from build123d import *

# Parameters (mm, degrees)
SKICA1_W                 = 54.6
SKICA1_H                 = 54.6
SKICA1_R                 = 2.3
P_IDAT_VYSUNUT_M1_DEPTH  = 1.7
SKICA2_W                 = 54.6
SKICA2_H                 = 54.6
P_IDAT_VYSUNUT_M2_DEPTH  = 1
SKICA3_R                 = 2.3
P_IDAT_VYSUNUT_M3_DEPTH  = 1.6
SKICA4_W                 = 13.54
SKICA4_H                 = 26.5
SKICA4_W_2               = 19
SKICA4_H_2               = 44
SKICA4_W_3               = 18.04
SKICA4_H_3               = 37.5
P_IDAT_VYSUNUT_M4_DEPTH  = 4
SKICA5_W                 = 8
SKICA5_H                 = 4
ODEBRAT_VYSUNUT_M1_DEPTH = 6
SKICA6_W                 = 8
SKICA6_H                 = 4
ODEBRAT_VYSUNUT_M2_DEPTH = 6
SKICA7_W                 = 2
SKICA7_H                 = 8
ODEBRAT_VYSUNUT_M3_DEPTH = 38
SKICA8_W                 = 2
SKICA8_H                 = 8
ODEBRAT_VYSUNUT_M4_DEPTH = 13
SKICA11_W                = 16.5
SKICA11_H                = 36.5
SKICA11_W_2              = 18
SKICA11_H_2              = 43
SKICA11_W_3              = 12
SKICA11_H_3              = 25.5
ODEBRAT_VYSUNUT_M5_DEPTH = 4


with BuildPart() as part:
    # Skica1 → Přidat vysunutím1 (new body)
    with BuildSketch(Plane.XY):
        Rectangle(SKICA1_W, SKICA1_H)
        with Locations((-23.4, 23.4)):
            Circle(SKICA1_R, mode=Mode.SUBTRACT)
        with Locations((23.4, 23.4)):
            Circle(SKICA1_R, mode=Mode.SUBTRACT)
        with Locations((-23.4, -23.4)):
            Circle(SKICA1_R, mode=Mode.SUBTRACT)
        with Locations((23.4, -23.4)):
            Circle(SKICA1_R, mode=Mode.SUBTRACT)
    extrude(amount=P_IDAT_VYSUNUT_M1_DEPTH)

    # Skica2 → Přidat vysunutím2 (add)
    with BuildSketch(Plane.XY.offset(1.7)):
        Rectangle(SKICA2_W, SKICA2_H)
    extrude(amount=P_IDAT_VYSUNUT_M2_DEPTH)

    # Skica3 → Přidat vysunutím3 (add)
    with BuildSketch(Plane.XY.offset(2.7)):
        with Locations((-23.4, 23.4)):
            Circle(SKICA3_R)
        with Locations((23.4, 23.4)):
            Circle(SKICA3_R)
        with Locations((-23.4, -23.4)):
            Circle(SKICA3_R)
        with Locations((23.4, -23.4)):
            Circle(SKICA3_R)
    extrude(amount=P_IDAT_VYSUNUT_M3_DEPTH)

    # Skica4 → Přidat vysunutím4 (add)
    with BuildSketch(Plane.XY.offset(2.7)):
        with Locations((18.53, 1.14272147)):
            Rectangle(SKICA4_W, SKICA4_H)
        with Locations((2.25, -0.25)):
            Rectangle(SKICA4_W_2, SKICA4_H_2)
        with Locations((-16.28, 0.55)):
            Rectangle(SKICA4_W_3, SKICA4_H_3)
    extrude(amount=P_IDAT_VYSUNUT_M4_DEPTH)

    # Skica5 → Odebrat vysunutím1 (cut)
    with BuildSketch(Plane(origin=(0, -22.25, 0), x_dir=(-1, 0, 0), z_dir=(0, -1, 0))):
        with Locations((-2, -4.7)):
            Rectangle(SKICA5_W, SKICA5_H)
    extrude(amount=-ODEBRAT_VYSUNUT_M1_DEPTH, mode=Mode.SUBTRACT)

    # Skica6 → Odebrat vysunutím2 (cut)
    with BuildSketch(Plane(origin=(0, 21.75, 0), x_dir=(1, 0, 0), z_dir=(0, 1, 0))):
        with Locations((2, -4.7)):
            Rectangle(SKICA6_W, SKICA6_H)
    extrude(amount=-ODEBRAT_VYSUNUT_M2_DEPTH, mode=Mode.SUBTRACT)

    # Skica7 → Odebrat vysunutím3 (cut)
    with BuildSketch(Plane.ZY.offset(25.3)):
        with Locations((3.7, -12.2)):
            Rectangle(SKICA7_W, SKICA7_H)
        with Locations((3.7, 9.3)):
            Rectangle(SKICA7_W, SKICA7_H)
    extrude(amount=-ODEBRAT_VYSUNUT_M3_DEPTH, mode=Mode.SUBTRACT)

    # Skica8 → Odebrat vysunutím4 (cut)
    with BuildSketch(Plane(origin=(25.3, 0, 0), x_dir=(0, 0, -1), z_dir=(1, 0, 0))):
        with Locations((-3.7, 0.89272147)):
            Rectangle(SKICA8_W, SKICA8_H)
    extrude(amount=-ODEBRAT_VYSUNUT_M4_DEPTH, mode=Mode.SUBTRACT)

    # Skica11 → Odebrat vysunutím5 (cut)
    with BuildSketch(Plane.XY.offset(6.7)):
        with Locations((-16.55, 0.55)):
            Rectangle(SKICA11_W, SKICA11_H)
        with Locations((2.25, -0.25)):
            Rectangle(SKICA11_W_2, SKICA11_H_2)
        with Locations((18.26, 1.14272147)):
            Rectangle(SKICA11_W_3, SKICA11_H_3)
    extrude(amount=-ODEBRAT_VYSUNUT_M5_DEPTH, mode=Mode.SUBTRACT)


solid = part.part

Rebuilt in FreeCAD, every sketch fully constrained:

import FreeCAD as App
import Part
import Sketcher
Q = App.Units.Quantity


def add_polygon(sketch, points):
    """Adds a closed chain of lines whose ends are joined by coincident constraints."""
    first, n = sketch.GeometryCount, len(points)
    for a, b in zip(points, points[1:] + points[:1]):
        sketch.addGeometry(Part.LineSegment(App.Vector(*a, 0), App.Vector(*b, 0)), False)
    for i in range(n):
        sketch.addConstraint(Sketcher.Constraint("Coincident", first + i, 2, first + (i + 1) % n, 1))

doc = App.newDocument("Part")
body = doc.addObject("PartDesign::Body", "Body")

sketch1 = body.newObject("Sketcher::SketchObject", "Sketch")
sketch1.AttachmentSupport = (doc.getObject("XY_Plane"), [""])
sketch1.MapMode = "FlatFace"
add_polygon(sketch1, [(-27.3, 27.3), (-27.3, -27.3), (27.3, -27.3), (27.3, 27.3)])
sketch1.addGeometry(Part.Circle(App.Vector(-23.4, -23.4, 0), App.Vector(0, 0, 1), 2.3), False)
sketch1.addGeometry(Part.Circle(App.Vector(23.4, -23.4, 0), App.Vector(0, 0, 1), 2.3), False)
sketch1.addGeometry(Part.Circle(App.Vector(-23.4, 23.4, 0), App.Vector(0, 0, 1), 2.3), False)
sketch1.addGeometry(Part.Circle(App.Vector(23.4, 23.4, 0), App.Vector(0, 0, 1), 2.3), False)
sketch1.addConstraint(Sketcher.Constraint("Vertical", 0))
sketch1.addConstraint(Sketcher.Constraint("Horizontal", 1))
sketch1.addConstraint(Sketcher.Constraint("Vertical", 2))
sketch1.addConstraint(Sketcher.Constraint("Horizontal", 3))
sketch1.addConstraint(Sketcher.Constraint("Equal", 4, 5))
sketch1.addConstraint(Sketcher.Constraint("Equal", 5, 6))
sketch1.addConstraint(Sketcher.Constraint("Equal", 6, 7))
sketch1.addConstraint(Sketcher.Constraint("Symmetric", 5, 3, 6, 3, -1, 1))
sketch1.addConstraint(Sketcher.Constraint("Symmetric", 4, 3, 7, 3, -1, 1))
sketch1.addConstraint(Sketcher.Constraint("Symmetric", 0, 2, 2, 2, -1, 1))
sketch1.addConstraint(Sketcher.Constraint("Symmetric", 4, 3, 5, 3, -2))
sketch1.addConstraint(Sketcher.Constraint("Equal", 3, 0))
sketch1.addConstraint(Sketcher.Constraint("Diameter", 4, Q("4.6 mm")))
sketch1.addConstraint(Sketcher.Constraint("DistanceX", 1, 1, 1, 2, Q("54.6 mm")))
sketch1.addConstraint(Sketcher.Constraint("DistanceX", 4, 3, -1, 1, Q("23.4 mm")))
sketch1.addConstraint(Sketcher.Constraint("DistanceY", 4, 3, -1, 1, Q("23.4 mm")))
pad1 = body.newObject("PartDesign::Pad", "Pad")
pad1.Profile = sketch1
pad1.Length = 1.7

sketch2 = body.newObject("Sketcher::SketchObject", "Sketch001")
sketch2.AttachmentSupport = (doc.getObject("XY_Plane"), [""])
sketch2.MapMode = "FlatFace"
sketch2.AttachmentOffset = App.Placement(App.Vector(0, 0, 1.7), App.Rotation())
add_polygon(sketch2, [(-27, 27), (-27, -27), (27, -27), (27, 27)])
sketch2.addConstraint(Sketcher.Constraint("Vertical", 0))
sketch2.addConstraint(Sketcher.Constraint("Horizontal", 1))
sketch2.addConstraint(Sketcher.Constraint("Vertical", 2))
sketch2.addConstraint(Sketcher.Constraint("Horizontal", 3))
sketch2.addConstraint(Sketcher.Constraint("Symmetric", 0, 2, 2, 2, -1, 1))
sketch2.addConstraint(Sketcher.Constraint("Equal", 3, 0))
sketch2.addConstraint(Sketcher.Constraint("DistanceX", 1, 1, 1, 2, Q("54.6 mm")))
pad2 = body.newObject("PartDesign::Pad", "Pad001")
pad2.Profile = sketch2
pad2.Length = 1

sketch3 = body.newObject("Sketcher::SketchObject", "Sketch002")
sketch3.AttachmentSupport = (doc.getObject("XY_Plane"), [""])
sketch3.MapMode = "FlatFace"
sketch3.AttachmentOffset = App.Placement(App.Vector(0, 0, 2.7), App.Rotation())
sketch3.addGeometry(Part.Circle(App.Vector(-23.4, 23.4, 0), App.Vector(0, 0, 1), 2.3), False)
sketch3.addGeometry(Part.Circle(App.Vector(23.4, 23.4, 0), App.Vector(0, 0, 1), 2.3), False)
sketch3.addGeometry(Part.Circle(App.Vector(-23.4, -23.4, 0), App.Vector(0, 0, 1), 2.3), False)
sketch3.addGeometry(Part.Circle(App.Vector(23.4, -23.4, 0), App.Vector(0, 0, 1), 2.3), False)
sketch3.addConstraint(Sketcher.Constraint("Equal", 0, 1))
sketch3.addConstraint(Sketcher.Constraint("Equal", 1, 2))
sketch3.addConstraint(Sketcher.Constraint("Equal", 2, 3))
sketch3.addConstraint(Sketcher.Constraint("Symmetric", 1, 3, 2, 3, -1, 1))
sketch3.addConstraint(Sketcher.Constraint("Symmetric", 0, 3, 3, 3, -1, 1))
sketch3.addConstraint(Sketcher.Constraint("Symmetric", 0, 3, 1, 3, -2))
sketch3.addConstraint(Sketcher.Constraint("Diameter", 0, Q("4.6 mm")))
sketch3.addConstraint(Sketcher.Constraint("DistanceX", 0, 3, -1, 1, Q("23.4 mm")))
sketch3.addConstraint(Sketcher.Constraint("DistanceY", -1, 1, 0, 3, Q("23.4 mm")))
pad3 = body.newObject("PartDesign::Pad", "Pad002")
pad3.Profile = sketch3
pad3.Length = 1.6

sketch4 = body.newObject("Sketcher::SketchObject", "Sketch003")
sketch4.AttachmentSupport = (doc.getObject("XY_Plane"), [""])
sketch4.MapMode = "FlatFace"
sketch4.AttachmentOffset = App.Placement(App.Vector(0, 0, 2.7), App.Rotation())
add_polygon(sketch4, [(12, 14), (12, -12), (25, -12), (25, 14)])
add_polygon(sketch4, [(-7, 22), (-7, -22), (12, -22), (12, 22)])
add_polygon(sketch4, [(-25, 19), (-25, -18), (-7, -18), (-7, 19)])
sketch4.addConstraint(Sketcher.Constraint("Vertical", 0))
sketch4.addConstraint(Sketcher.Constraint("Horizontal", 1))
sketch4.addConstraint(Sketcher.Constraint("Vertical", 2))
sketch4.addConstraint(Sketcher.Constraint("Horizontal", 3))
sketch4.addConstraint(Sketcher.Constraint("Vertical", 4))
sketch4.addConstraint(Sketcher.Constraint("Horizontal", 5))
sketch4.addConstraint(Sketcher.Constraint("Vertical", 6))
sketch4.addConstraint(Sketcher.Constraint("Horizontal", 7))
sketch4.addConstraint(Sketcher.Constraint("Vertical", 8))
sketch4.addConstraint(Sketcher.Constraint("Horizontal", 9))
sketch4.addConstraint(Sketcher.Constraint("Vertical", 10))
sketch4.addConstraint(Sketcher.Constraint("Horizontal", 11))
sketch4.addConstraint(Sketcher.Constraint("DistanceX", 5, 1, 5, 2, Q("19 mm")))
sketch4.addConstraint(Sketcher.Constraint("DistanceY", 4, 2, 4, 1, Q("44 mm")))
sketch4.addConstraint(Sketcher.Constraint("DistanceY", 0, 2, 0, 1, Q("26.5 mm")))
sketch4.addConstraint(Sketcher.Constraint("DistanceY", 8, 2, 8, 1, Q("37.5 mm")))
sketch4.addConstraint(Sketcher.Constraint("DistanceX", 1, 1, 1, 2, Q("13.54 mm")))
sketch4.addConstraint(Sketcher.Constraint("DistanceX", 9, 1, 9, 2, Q("18.04 mm")))
sketch4.addConstraint(Sketcher.Constraint("DistanceX", -1, 1, 1, 2, Q("25.3 mm")))
sketch4.addConstraint(Sketcher.Constraint("DistanceX", 8, 2, -1, 1, Q("25.3 mm")))
sketch4.addConstraint(Sketcher.Constraint("DistanceY", 8, 2, -1, 1, Q("18.2 mm")))
sketch4.addConstraint(Sketcher.Constraint("DistanceX", 4, 2, -1, 1, Q("7.25 mm")))
sketch4.addConstraint(Sketcher.Constraint("DistanceY", 4, 2, -1, 1, Q("22.25 mm")))
sketch4.addConstraint(Sketcher.Constraint("DistanceY", 0, 2, -1, 1, Q("12.107279 mm")))
pad4 = body.newObject("PartDesign::Pad", "Pad003")
pad4.Profile = sketch4
pad4.Length = 4

sketch5 = body.newObject("Sketcher::SketchObject", "Sketch004")
sketch5.AttachmentSupport = (doc.getObject("XZ_Plane"), [""])
sketch5.MapMode = "FlatFace"
sketch5.AttachmentOffset = App.Placement(App.Vector(0, 0, 22.25), App.Rotation())
add_polygon(sketch5, [(6, 2.7), (6, 6.7), (-2, 6.7), (-2, 2.7)])
sketch5.addConstraint(Sketcher.Constraint("Vertical", 0))
sketch5.addConstraint(Sketcher.Constraint("Horizontal", 1))
sketch5.addConstraint(Sketcher.Constraint("Vertical", 2))
sketch5.addConstraint(Sketcher.Constraint("Horizontal", 3))
sketch5.addConstraint(Sketcher.Constraint("DistanceX", 1, 2, 1, 1, Q("8 mm")))
sketch5.addConstraint(Sketcher.Constraint("DistanceY", 0, 1, 0, 2, Q("4 mm")))
sketch5.addConstraint(Sketcher.Constraint("DistanceX", -1, 1, 0, 2, Q("6 mm")))
sketch5.addConstraint(Sketcher.Constraint("DistanceY", -1, 1, 0, 2, Q("6.7 mm")))
pocket1 = body.newObject("PartDesign::Pocket", "Pocket")
pocket1.Profile = sketch5
pocket1.Length = 6

sketch6 = body.newObject("Sketcher::SketchObject", "Sketch005")
sketch6.AttachmentSupport = (doc.getObject("XZ_Plane"), [""])
sketch6.MapMode = "FlatFace"
sketch6.AttachmentOffset = App.Placement(App.Vector(0, 0, -21.75), App.Rotation())
add_polygon(sketch6, [(-2, 2.7), (-2, 6.7), (6, 6.7), (6, 2.7)])
sketch6.addConstraint(Sketcher.Constraint("Vertical", 0))
sketch6.addConstraint(Sketcher.Constraint("Horizontal", 1))
sketch6.addConstraint(Sketcher.Constraint("Vertical", 2))
sketch6.addConstraint(Sketcher.Constraint("Horizontal", 3))
sketch6.addConstraint(Sketcher.Constraint("DistanceX", 1, 1, 1, 2, Q("8 mm")))
sketch6.addConstraint(Sketcher.Constraint("DistanceY", 0, 1, 0, 2, Q("4 mm")))
sketch6.addConstraint(Sketcher.Constraint("DistanceX", 0, 2, -1, 1, Q("2 mm")))
sketch6.addConstraint(Sketcher.Constraint("DistanceY", -1, 1, 0, 2, Q("6.7 mm")))
pocket2 = body.newObject("PartDesign::Pocket", "Pocket001")
pocket2.Profile = sketch6
pocket2.Length = 6
pocket2.Reversed = True

sketch7 = body.newObject("Sketcher::SketchObject", "Sketch006")
sketch7.AttachmentSupport = (doc.getObject("YZ_Plane"), [""])
sketch7.MapMode = "FlatFace"
sketch7.AttachmentOffset = App.Placement(App.Vector(0, 0, -25.3), App.Rotation())
add_polygon(sketch7, [(-8.2, 2.7), (-16.2, 2.7), (-16.2, 4.7), (-8.2, 4.7)])
add_polygon(sketch7, [(13.3, 2.7), (5.3, 2.7), (5.3, 4.7), (13.3, 4.7)])
sketch7.addConstraint(Sketcher.Constraint("Horizontal", 0))
sketch7.addConstraint(Sketcher.Constraint("Vertical", 1))
sketch7.addConstraint(Sketcher.Constraint("Horizontal", 2))
sketch7.addConstraint(Sketcher.Constraint("Vertical", 3))
sketch7.addConstraint(Sketcher.Constraint("Horizontal", 4))
sketch7.addConstraint(Sketcher.Constraint("Vertical", 5))
sketch7.addConstraint(Sketcher.Constraint("Horizontal", 6))
sketch7.addConstraint(Sketcher.Constraint("Vertical", 7))
sketch7.addConstraint(Sketcher.Constraint("Horizontal", 3, 2, 4, 2))
sketch7.addConstraint(Sketcher.Constraint("Horizontal", 2, 2, 5, 2))
sketch7.addConstraint(Sketcher.Constraint("Equal", 2, 4))
sketch7.addConstraint(Sketcher.Constraint("DistanceX", 0, 2, 0, 1, Q("8 mm")))
sketch7.addConstraint(Sketcher.Constraint("DistanceY", 1, 1, 1, 2, Q("2 mm")))
sketch7.addConstraint(Sketcher.Constraint("DistanceX", 0, 2, -1, 1, Q("16.2 mm")))
sketch7.addConstraint(Sketcher.Constraint("DistanceY", -1, 1, 0, 2, Q("2.7 mm")))
sketch7.addConstraint(Sketcher.Constraint("DistanceX", -1, 1, 4, 2, Q("5.3 mm")))
pocket3 = body.newObject("PartDesign::Pocket", "Pocket002")
pocket3.Profile = sketch7
pocket3.Length = 38
pocket3.Reversed = True

sketch8 = body.newObject("Sketcher::SketchObject", "Sketch007")
sketch8.AttachmentSupport = (doc.getObject("YZ_Plane"), [""])
sketch8.MapMode = "FlatFace"
sketch8.AttachmentOffset = App.Placement(App.Vector(0, 0, 25.3), App.Rotation())
add_polygon(sketch8, [(4.9, 4.7), (-3.1, 4.7), (-3.1, 2.7), (4.9, 2.7)])
sketch8.addConstraint(Sketcher.Constraint("Horizontal", 0))
sketch8.addConstraint(Sketcher.Constraint("Vertical", 1))
sketch8.addConstraint(Sketcher.Constraint("Horizontal", 2))
sketch8.addConstraint(Sketcher.Constraint("Vertical", 3))
sketch8.addConstraint(Sketcher.Constraint("DistanceX", 0, 2, 0, 1, Q("8 mm")))
sketch8.addConstraint(Sketcher.Constraint("DistanceY", 1, 2, 1, 1, Q("2 mm")))
sketch8.addConstraint(Sketcher.Constraint("DistanceY", -1, 1, 0, 2, Q("4.7 mm")))
sketch8.addConstraint(Sketcher.Constraint("DistanceX", 0, 2, -1, 1, Q("3.107279 mm")))
pocket4 = body.newObject("PartDesign::Pocket", "Pocket003")
pocket4.Profile = sketch8
pocket4.Length = 13

sketch9 = body.newObject("Sketcher::SketchObject", "Sketch008")
sketch9.AttachmentSupport = (doc.getObject("XY_Plane"), [""])
sketch9.MapMode = "FlatFace"
sketch9.AttachmentOffset = App.Placement(App.Vector(0, 0, 6.7), App.Rotation())
add_polygon(sketch9, [(-25, 19), (-25, -18), (-8, -18), (-8, 19)])
add_polygon(sketch9, [(-7, 21), (-7, -22), (11, -22), (11, 21)])
add_polygon(sketch9, [(12, 14), (12, -12), (24, -12), (24, 14)])
sketch9.addConstraint(Sketcher.Constraint("Vertical", 0))
sketch9.addConstraint(Sketcher.Constraint("Horizontal", 1))
sketch9.addConstraint(Sketcher.Constraint("Vertical", 2))
sketch9.addConstraint(Sketcher.Constraint("Horizontal", 3))
sketch9.addConstraint(Sketcher.Constraint("Vertical", 4))
sketch9.addConstraint(Sketcher.Constraint("Horizontal", 5))
sketch9.addConstraint(Sketcher.Constraint("Vertical", 6))
sketch9.addConstraint(Sketcher.Constraint("Horizontal", 7))
sketch9.addConstraint(Sketcher.Constraint("Vertical", 8))
sketch9.addConstraint(Sketcher.Constraint("Horizontal", 9))
sketch9.addConstraint(Sketcher.Constraint("Vertical", 10))
sketch9.addConstraint(Sketcher.Constraint("Horizontal", 11))
sketch9.addConstraint(Sketcher.Constraint("DistanceX", 5, 1, 5, 2, Q("18 mm")))
sketch9.addConstraint(Sketcher.Constraint("DistanceX", 9, 1, 9, 2, Q("12 mm")))
sketch9.addConstraint(Sketcher.Constraint("DistanceY", 4, 2, 4, 1, Q("43 mm")))
sketch9.addConstraint(Sketcher.Constraint("DistanceX", 1, 1, 1, 2, Q("16.5 mm")))
sketch9.addConstraint(Sketcher.Constraint("DistanceY", 0, 2, 0, 1, Q("36.5 mm")))
sketch9.addConstraint(Sketcher.Constraint("DistanceY", 8, 2, 8, 1, Q("25.5 mm")))
sketch9.addConstraint(Sketcher.Constraint("DistanceX", 0, 2, -1, 1, Q("24.8 mm")))
sketch9.addConstraint(Sketcher.Constraint("DistanceY", 0, 2, -1, 1, Q("17.7 mm")))
sketch9.addConstraint(Sketcher.Constraint("DistanceX", 4, 2, -1, 1, Q("6.75 mm")))
sketch9.addConstraint(Sketcher.Constraint("DistanceY", 4, 2, -1, 1, Q("21.75 mm")))
sketch9.addConstraint(Sketcher.Constraint("DistanceX", -1, 1, 8, 2, Q("12.26 mm")))
sketch9.addConstraint(Sketcher.Constraint("DistanceY", 8, 2, -1, 1, Q("11.607279 mm")))
pocket5 = body.newObject("PartDesign::Pocket", "Pocket004")
pocket5.Profile = sketch9
pocket5.Length = 4

doc.recompute()
